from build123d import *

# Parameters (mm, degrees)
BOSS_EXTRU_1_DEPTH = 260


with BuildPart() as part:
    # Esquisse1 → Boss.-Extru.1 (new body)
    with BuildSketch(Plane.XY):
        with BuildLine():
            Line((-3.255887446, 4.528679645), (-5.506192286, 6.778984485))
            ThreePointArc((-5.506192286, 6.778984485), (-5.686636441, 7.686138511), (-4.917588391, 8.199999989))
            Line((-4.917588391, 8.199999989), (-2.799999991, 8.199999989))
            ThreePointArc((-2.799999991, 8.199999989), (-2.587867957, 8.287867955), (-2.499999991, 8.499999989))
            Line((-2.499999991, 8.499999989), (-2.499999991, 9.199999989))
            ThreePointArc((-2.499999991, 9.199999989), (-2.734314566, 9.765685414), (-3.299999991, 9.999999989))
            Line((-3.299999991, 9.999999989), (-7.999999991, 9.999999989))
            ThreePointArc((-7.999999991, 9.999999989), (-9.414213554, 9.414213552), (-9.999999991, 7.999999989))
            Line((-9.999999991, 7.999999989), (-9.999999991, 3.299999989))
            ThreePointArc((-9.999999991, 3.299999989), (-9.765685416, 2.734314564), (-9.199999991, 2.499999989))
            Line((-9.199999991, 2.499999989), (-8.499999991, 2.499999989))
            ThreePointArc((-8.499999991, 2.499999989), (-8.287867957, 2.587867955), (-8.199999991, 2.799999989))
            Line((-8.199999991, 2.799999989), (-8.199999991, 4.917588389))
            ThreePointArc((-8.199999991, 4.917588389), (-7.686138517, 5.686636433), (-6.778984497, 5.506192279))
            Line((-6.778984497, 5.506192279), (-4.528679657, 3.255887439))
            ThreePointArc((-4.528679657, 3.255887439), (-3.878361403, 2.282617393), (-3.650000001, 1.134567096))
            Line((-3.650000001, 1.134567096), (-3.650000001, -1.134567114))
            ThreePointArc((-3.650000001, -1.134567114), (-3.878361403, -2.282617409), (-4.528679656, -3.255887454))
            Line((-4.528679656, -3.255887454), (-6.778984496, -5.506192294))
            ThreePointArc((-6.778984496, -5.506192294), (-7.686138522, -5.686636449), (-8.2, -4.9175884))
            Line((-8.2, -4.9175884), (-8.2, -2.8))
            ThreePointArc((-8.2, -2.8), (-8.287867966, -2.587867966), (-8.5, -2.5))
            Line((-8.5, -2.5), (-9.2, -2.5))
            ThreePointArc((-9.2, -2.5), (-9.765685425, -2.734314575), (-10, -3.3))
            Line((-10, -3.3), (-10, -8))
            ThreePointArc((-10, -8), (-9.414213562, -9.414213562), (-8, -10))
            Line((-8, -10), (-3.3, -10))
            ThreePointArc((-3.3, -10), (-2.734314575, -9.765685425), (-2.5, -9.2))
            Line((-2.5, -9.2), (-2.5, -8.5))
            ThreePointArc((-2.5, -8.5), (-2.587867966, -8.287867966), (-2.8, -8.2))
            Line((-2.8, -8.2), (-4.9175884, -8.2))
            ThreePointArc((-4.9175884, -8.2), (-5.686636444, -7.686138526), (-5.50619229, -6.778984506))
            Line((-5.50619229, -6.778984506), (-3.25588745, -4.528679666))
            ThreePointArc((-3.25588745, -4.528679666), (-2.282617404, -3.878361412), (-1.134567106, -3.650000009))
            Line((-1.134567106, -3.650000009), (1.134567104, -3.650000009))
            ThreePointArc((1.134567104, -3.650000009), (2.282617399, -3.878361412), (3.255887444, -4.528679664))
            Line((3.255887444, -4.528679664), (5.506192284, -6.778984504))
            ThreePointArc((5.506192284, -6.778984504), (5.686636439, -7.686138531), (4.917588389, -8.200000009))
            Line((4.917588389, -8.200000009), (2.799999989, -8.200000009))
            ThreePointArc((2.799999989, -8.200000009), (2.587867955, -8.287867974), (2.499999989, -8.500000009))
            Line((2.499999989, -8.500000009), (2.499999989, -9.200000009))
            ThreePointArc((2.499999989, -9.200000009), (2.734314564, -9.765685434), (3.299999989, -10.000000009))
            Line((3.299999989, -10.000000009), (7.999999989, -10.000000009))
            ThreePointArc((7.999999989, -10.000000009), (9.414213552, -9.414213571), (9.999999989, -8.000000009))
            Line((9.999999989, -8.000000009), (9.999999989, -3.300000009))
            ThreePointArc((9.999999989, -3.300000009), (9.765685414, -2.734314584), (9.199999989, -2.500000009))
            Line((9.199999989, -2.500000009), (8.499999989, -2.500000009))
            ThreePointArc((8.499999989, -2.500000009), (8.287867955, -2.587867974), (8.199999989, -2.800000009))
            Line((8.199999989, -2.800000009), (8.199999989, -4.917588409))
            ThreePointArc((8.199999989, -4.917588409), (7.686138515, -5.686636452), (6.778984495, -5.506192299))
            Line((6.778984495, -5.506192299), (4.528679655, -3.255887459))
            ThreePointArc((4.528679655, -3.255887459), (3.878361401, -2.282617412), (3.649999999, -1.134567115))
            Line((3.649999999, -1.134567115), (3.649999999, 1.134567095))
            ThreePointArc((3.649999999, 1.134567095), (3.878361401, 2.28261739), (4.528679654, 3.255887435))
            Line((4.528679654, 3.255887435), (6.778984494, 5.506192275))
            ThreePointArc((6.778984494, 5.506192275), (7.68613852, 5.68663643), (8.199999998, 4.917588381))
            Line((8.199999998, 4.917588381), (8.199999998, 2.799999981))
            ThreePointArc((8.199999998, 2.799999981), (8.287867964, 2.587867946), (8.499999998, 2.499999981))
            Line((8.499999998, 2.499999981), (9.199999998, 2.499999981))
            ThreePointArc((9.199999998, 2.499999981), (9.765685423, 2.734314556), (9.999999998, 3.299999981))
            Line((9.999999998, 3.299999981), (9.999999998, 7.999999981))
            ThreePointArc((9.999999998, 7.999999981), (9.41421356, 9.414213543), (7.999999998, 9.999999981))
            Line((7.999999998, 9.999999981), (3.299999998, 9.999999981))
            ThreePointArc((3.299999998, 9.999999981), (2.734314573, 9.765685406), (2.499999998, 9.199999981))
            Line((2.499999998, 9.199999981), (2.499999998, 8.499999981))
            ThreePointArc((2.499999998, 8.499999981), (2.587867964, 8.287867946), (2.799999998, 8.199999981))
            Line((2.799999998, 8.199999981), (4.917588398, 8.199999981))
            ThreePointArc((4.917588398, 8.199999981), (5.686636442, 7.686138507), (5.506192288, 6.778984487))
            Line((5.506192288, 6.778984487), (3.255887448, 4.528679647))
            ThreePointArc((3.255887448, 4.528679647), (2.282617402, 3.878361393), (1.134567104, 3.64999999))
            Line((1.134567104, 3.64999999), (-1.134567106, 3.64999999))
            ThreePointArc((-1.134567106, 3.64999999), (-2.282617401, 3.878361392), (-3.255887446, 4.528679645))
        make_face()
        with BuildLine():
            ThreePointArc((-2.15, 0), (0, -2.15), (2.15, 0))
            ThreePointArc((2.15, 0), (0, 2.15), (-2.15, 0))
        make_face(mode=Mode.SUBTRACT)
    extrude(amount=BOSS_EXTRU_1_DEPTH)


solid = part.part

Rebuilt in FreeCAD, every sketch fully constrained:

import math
import FreeCAD as App
import Part
import Sketcher
from FreeCAD import Vector
Q = App.Units.Quantity

doc = App.newDocument("Part")
body = doc.addObject("PartDesign::Body", "Body")

# Sketch on XY plane
sketch1 = body.newObject("Sketcher::SketchObject", "Sketch")
sketch1.AttachmentSupport = (doc.getObject("XY_Plane"), [""])
sketch1.MapMode = "FlatFace"
sketch1.addGeometry(Part.LineSegment(Vector(-3.255887, 4.52868, 0), Vector(-5.506192, 6.778984, 0)), False)
sketch1.addGeometry(Part.ArcOfCircle(Part.Circle(Vector(-4.917588, 7.367588, 0), Vector(0, 0, 1), 0.832412), math.radians(90), math.radians(225)), False)
sketch1.addGeometry(Part.LineSegment(Vector(-4.917588, 8.2, 0), Vector(-2.8, 8.2, 0)), False)
sketch1.addGeometry(Part.ArcOfCircle(Part.Circle(Vector(-2.8, 8.5, 0), Vector(0, 0, 1), 0.3), math.radians(-90), math.radians(0)), False)
sketch1.addGeometry(Part.LineSegment(Vector(-2.5, 8.5, 0), Vector(-2.5, 9.2, 0)), False)
sketch1.addGeometry(Part.ArcOfCircle(Part.Circle(Vector(-3.3, 9.2, 0), Vector(0, 0, 1), 0.8), math.radians(0), math.radians(90)), False)
sketch1.addGeometry(Part.LineSegment(Vector(-3.3, 10, 0), Vector(-8, 10, 0)), False)
sketch1.addGeometry(Part.ArcOfCircle(Part.Circle(Vector(-8, 8, 0), Vector(0, 0, 1), 2), math.radians(90), math.radians(180)), False)
sketch1.addGeometry(Part.LineSegment(Vector(-10, 8, 0), Vector(-10, 3.3, 0)), False)
sketch1.addGeometry(Part.ArcOfCircle(Part.Circle(Vector(-9.2, 3.3, 0), Vector(0, 0, 1), 0.8), math.radians(180), math.radians(270)), False)
sketch1.addGeometry(Part.LineSegment(Vector(-9.2, 2.5, 0), Vector(-8.5, 2.5, 0)), False)
sketch1.addGeometry(Part.ArcOfCircle(Part.Circle(Vector(-8.5, 2.8, 0), Vector(0, 0, 1), 0.3), math.radians(-90), math.radians(0)), False)
sketch1.addGeometry(Part.LineSegment(Vector(-8.2, 2.8, 0), Vector(-8.2, 4.917588, 0)), False)
sketch1.addGeometry(Part.ArcOfCircle(Part.Circle(Vector(-7.367588, 4.917588, 0), Vector(0, 0, 1), 0.832412), math.radians(45), math.radians(180)), False)
sketch1.addGeometry(Part.LineSegment(Vector(-6.778984, 5.506192, 0), Vector(-4.52868, 3.255887, 0)), False)
sketch1.addGeometry(Part.ArcOfCircle(Part.Circle(Vector(-6.65, 1.134567, 0), Vector(0, 0, 1), 3), math.radians(0), math.radians(45)), False)
sketch1.addGeometry(Part.LineSegment(Vector(-3.65, 1.134567, 0), Vector(-3.65, -1.134567, 0)), False)
sketch1.addGeometry(Part.ArcOfCircle(Part.Circle(Vector(-6.65, -1.134567, 0), Vector(0, 0, 1), 3), math.radians(-45), math.radians(0)), False)
sketch1.addGeometry(Part.LineSegment(Vector(-4.52868, -3.255887, 0), Vector(-6.778984, -5.506192, 0)), False)
sketch1.addGeometry(Part.ArcOfCircle(Part.Circle(Vector(-7.367588, -4.917588, 0), Vector(0, 0, 1), 0.832412), math.radians(180), math.radians(315)), False)
sketch1.addGeometry(Part.LineSegment(Vector(-8.2, -4.917588, 0), Vector(-8.2, -2.8, 0)), False)
sketch1.addGeometry(Part.ArcOfCircle(Part.Circle(Vector(-8.5, -2.8, 0), Vector(0, 0, 1), 0.3), math.radians(0), math.radians(90)), False)
sketch1.addGeometry(Part.LineSegment(Vector(-8.5, -2.5, 0), Vector(-9.2, -2.5, 0)), False)
sketch1.addGeometry(Part.ArcOfCircle(Part.Circle(Vector(-9.2, -3.3, 0), Vector(0, 0, 1), 0.8), math.radians(90), math.radians(180)), False)
sketch1.addGeometry(Part.LineSegment(Vector(-10, -3.3, 0), Vector(-10, -8, 0)), False)
sketch1.addGeometry(Part.ArcOfCircle(Part.Circle(Vector(-8, -8, 0), Vector(0, 0, 1), 2), math.radians(-180), math.radians(-90)), False)
sketch1.addGeometry(Part.LineSegment(Vector(-8, -10, 0), Vector(-3.3, -10, 0)), False)
sketch1.addGeometry(Part.ArcOfCircle(Part.Circle(Vector(-3.3, -9.2, 0), Vector(0, 0, 1), 0.8), math.radians(-90), math.radians(0)), False)
sketch1.addGeometry(Part.LineSegment(Vector(-2.5, -9.2, 0), Vector(-2.5, -8.5, 0)), False)
sketch1.addGeometry(Part.ArcOfCircle(Part.Circle(Vector(-2.8, -8.5, 0), Vector(0, 0, 1), 0.3), math.radians(0), math.radians(90)), False)
sketch1.addGeometry(Part.LineSegment(Vector(-2.8, -8.2, 0), Vector(-4.917588, -8.2, 0)), False)
sketch1.addGeometry(Part.ArcOfCircle(Part.Circle(Vector(-4.917588, -7.367588, 0), Vector(0, 0, 1), 0.832412), math.radians(135), math.radians(270)), False)
sketch1.addGeometry(Part.LineSegment(Vector(-5.506192, -6.778985, 0), Vector(-3.255887, -4.52868, 0)), False)
sketch1.addGeometry(Part.ArcOfCircle(Part.Circle(Vector(-1.134567, -6.65, 0), Vector(0, 0, 1), 3), math.radians(90), math.radians(135)), False)
sketch1.addGeometry(Part.LineSegment(Vector(-1.134567, -3.65, 0), Vector(1.134567, -3.65, 0)), False)
sketch1.addGeometry(Part.ArcOfCircle(Part.Circle(Vector(1.134567, -6.65, 0), Vector(0, 0, 1), 3), math.radians(45), math.radians(90)), False)
sketch1.addGeometry(Part.LineSegment(Vector(3.255887, -4.52868, 0), Vector(5.506192, -6.778985, 0)), False)
sketch1.addGeometry(Part.ArcOfCircle(Part.Circle(Vector(4.917588, -7.367588, 0), Vector(0, 0, 1), 0.832412), math.radians(-90), math.radians(45)), False)
sketch1.addGeometry(Part.LineSegment(Vector(4.917588, -8.2, 0), Vector(2.8, -8.2, 0)), False)
sketch1.addGeometry(Part.ArcOfCircle(Part.Circle(Vector(2.8, -8.5, 0), Vector(0, 0, 1), 0.3), math.radians(90), math.radians(180)), False)
sketch1.addGeometry(Part.LineSegment(Vector(2.5, -8.5, 0), Vector(2.5, -9.2, 0)), False)
sketch1.addGeometry(Part.ArcOfCircle(Part.Circle(Vector(3.3, -9.2, 0), Vector(0, 0, 1), 0.8), math.radians(180), math.radians(270)), False)
sketch1.addGeometry(Part.LineSegment(Vector(3.3, -10, 0), Vector(8, -10, 0)), False)
sketch1.addGeometry(Part.ArcOfCircle(Part.Circle(Vector(8, -8, 0), Vector(0, 0, 1), 2), math.radians(-90), math.radians(0)), False)
sketch1.addGeometry(Part.LineSegment(Vector(10, -8, 0), Vector(10, -3.3, 0)), False)
sketch1.addGeometry(Part.ArcOfCircle(Part.Circle(Vector(9.2, -3.3, 0), Vector(0, 0, 1), 0.8), math.radians(0), math.radians(90)), False)
sketch1.addGeometry(Part.LineSegment(Vector(9.2, -2.5, 0), Vector(8.5, -2.5, 0)), False)
sketch1.addGeometry(Part.ArcOfCircle(Part.Circle(Vector(8.5, -2.8, 0), Vector(0, 0, 1), 0.3), math.radians(90), math.radians(180)), False)
sketch1.addGeometry(Part.LineSegment(Vector(8.2, -2.8, 0), Vector(8.2, -4.917588, 0)), False)
sketch1.addGeometry(Part.ArcOfCircle(Part.Circle(Vector(7.367588, -4.917588, 0), Vector(0, 0, 1), 0.832412), math.radians(-135), math.radians(0)), False)
sketch1.addGeometry(Part.LineSegment(Vector(6.778984, -5.506192, 0), Vector(4.52868, -3.255887, 0)), False)
sketch1.addGeometry(Part.ArcOfCircle(Part.Circle(Vector(6.65, -1.134567, 0), Vector(0, 0, 1), 3), math.radians(180), math.radians(225)), False)
sketch1.addGeometry(Part.LineSegment(Vector(3.65, -1.134567, 0), Vector(3.65, 1.134567, 0)), False)
sketch1.addGeometry(Part.ArcOfCircle(Part.Circle(Vector(6.65, 1.134567, 0), Vector(0, 0, 1), 3), math.radians(135), math.radians(180)), False)
sketch1.addGeometry(Part.LineSegment(Vector(4.52868, 3.255887, 0), Vector(6.778984, 5.506192, 0)), False)
sketch1.addGeometry(Part.ArcOfCircle(Part.Circle(Vector(7.367588, 4.917588, 0), Vector(0, 0, 1), 0.832412), math.radians(0), math.radians(135)), False)
sketch1.addGeometry(Part.LineSegment(Vector(8.2, 4.917588, 0), Vector(8.2, 2.8, 0)), False)
sketch1.addGeometry(Part.ArcOfCircle(Part.Circle(Vector(8.5, 2.8, 0), Vector(0, 0, 1), 0.3), math.radians(180), math.radians(270)), False)
sketch1.addGeometry(Part.LineSegment(Vector(8.5, 2.5, 0), Vector(9.2, 2.5, 0)), False)
sketch1.addGeometry(Part.ArcOfCircle(Part.Circle(Vector(9.2, 3.3, 0), Vector(0, 0, 1), 0.8), math.radians(-90), math.radians(0)), False)
sketch1.addGeometry(Part.LineSegment(Vector(10, 3.3, 0), Vector(10, 8, 0)), False)
sketch1.addGeometry(Part.ArcOfCircle(Part.Circle(Vector(8, 8, 0), Vector(0, 0, 1), 2), math.radians(0), math.radians(90)), False)
sketch1.addGeometry(Part.LineSegment(Vector(8, 10, 0), Vector(3.3, 10, 0)), False)
sketch1.addGeometry(Part.ArcOfCircle(Part.Circle(Vector(3.3, 9.2, 0), Vector(0, 0, 1), 0.8), math.radians(90), math.radians(180)), False)
sketch1.addGeometry(Part.LineSegment(Vector(2.5, 9.2, 0), Vector(2.5, 8.5, 0)), False)
sketch1.addGeometry(Part.ArcOfCircle(Part.Circle(Vector(2.8, 8.5, 0), Vector(0, 0, 1), 0.3), math.radians(180), math.radians(270)), False)
sketch1.addGeometry(Part.LineSegment(Vector(2.8, 8.2, 0), Vector(4.917588, 8.2, 0)), False)
sketch1.addGeometry(Part.ArcOfCircle(Part.Circle(Vector(4.917588, 7.367588, 0), Vector(0, 0, 1), 0.832412), math.radians(-45), math.radians(90)), False)
sketch1.addGeometry(Part.LineSegment(Vector(5.506192, 6.778984, 0), Vector(3.255887, 4.52868, 0)), False)
sketch1.addGeometry(Part.ArcOfCircle(Part.Circle(Vector(1.134567, 6.65, 0), Vector(0, 0, 1), 3), math.radians(-90), math.radians(-45)), False)
sketch1.addGeometry(Part.LineSegment(Vector(1.134567, 3.65, 0), Vector(-1.134567, 3.65, 0)), False)
sketch1.addGeometry(Part.ArcOfCircle(Part.Circle(Vector(-1.134567, 6.65, 0), Vector(0, 0, 1), 3), math.radians(-135), math.radians(-90)), False)
sketch1.addGeometry(Part.Circle(Vector(0, 0, 0), Vector(0, 0, 1), 2.15), False)
sketch1.addConstraint(Sketcher.Constraint("Tangent", 0, 2, 1, 2))
sketch1.addConstraint(Sketcher.Constraint("Tangent", 1, 1, 2, 1))
sketch1.addConstraint(Sketcher.Constraint("Tangent", 2, 2, 3, 1))
sketch1.addConstraint(Sketcher.Constraint("Tangent", 3, 2, 4, 1))
sketch1.addConstraint(Sketcher.Constraint("Tangent", 4, 2, 5, 1))
sketch1.addConstraint(Sketcher.Constraint("Tangent", 5, 2, 6, 1))
sketch1.addConstraint(Sketcher.Constraint("Tangent", 6, 2, 7, 1))
sketch1.addConstraint(Sketcher.Constraint("Tangent", 7, 2, 8, 1))
sketch1.addConstraint(Sketcher.Constraint("Tangent", 8, 2, 9, 1))
sketch1.addConstraint(Sketcher.Constraint("Tangent", 9, 2, 10, 1))
sketch1.addConstraint(Sketcher.Constraint("Tangent", 10, 2, 11, 1))
sketch1.addConstraint(Sketcher.Constraint("Tangent", 11, 2, 12, 1))
sketch1.addConstraint(Sketcher.Constraint("Tangent", 12, 2, 13, 2))
sketch1.addConstraint(Sketcher.Constraint("Tangent", 13, 1, 14, 1))
sketch1.addConstraint(Sketcher.Constraint("Tangent", 14, 2, 15, 2))
sketch1.addConstraint(Sketcher.Constraint("Tangent", 15, 1, 16, 1))
sketch1.addConstraint(Sketcher.Constraint("Tangent", 16, 2, 17, 2))
sketch1.addConstraint(Sketcher.Constraint("Tangent", 17, 1, 18, 1))
sketch1.addConstraint(Sketcher.Constraint("Tangent", 18, 2, 19, 2))
sketch1.addConstraint(Sketcher.Constraint("Tangent", 19, 1, 20, 1))
sketch1.addConstraint(Sketcher.Constraint("Tangent", 20, 2, 21, 1))
sketch1.addConstraint(Sketcher.Constraint("Tangent", 21, 2, 22, 1))
sketch1.addConstraint(Sketcher.Constraint("Tangent", 22, 2, 23, 1))
sketch1.addConstraint(Sketcher.Constraint("Tangent", 23, 2, 24, 1))
sketch1.addConstraint(Sketcher.Constraint("Tangent", 24, 2, 25, 1))
sketch1.addConstraint(Sketcher.Constraint("Tangent", 25, 2, 26, 1))
sketch1.addConstraint(Sketcher.Constraint("Tangent", 26, 2, 27, 1))
sketch1.addConstraint(Sketcher.Constraint("Tangent", 27, 2, 28, 1))
sketch1.addConstraint(Sketcher.Constraint("Tangent", 28, 2, 29, 1))
sketch1.addConstraint(Sketcher.Constraint("Tangent", 29, 2, 30, 1))
sketch1.addConstraint(Sketcher.Constraint("Tangent", 30, 2, 31, 2))
sketch1.addConstraint(Sketcher.Constraint("Tangent", 31, 1, 32, 1))
sketch1.addConstraint(Sketcher.Constraint("Tangent", 32, 2, 33, 2))
sketch1.addConstraint(Sketcher.Constraint("Tangent", 33, 1, 34, 1))
sketch1.addConstraint(Sketcher.Constraint("Tangent", 34, 2, 35, 2))
sketch1.addConstraint(Sketcher.Constraint("Tangent", 35, 1, 36, 1))
sketch1.addConstraint(Sketcher.Constraint("Tangent", 36, 2, 37, 2))
sketch1.addConstraint(Sketcher.Constraint("Tangent", 37, 1, 38, 1))
sketch1.addConstraint(Sketcher.Constraint("Tangent", 38, 2, 39, 1))
sketch1.addConstraint(Sketcher.Constraint("Tangent", 39, 2, 40, 1))
sketch1.addConstraint(Sketcher.Constraint("Tangent", 40, 2, 41, 1))
sketch1.addConstraint(Sketcher.Constraint("Tangent", 41, 2, 42, 1))
sketch1.addConstraint(Sketcher.Constraint("Tangent", 42, 2, 43, 1))
sketch1.addConstraint(Sketcher.Constraint("Tangent", 43, 2, 44, 1))
sketch1.addConstraint(Sketcher.Constraint("Tangent", 44, 2, 45, 1))
sketch1.addConstraint(Sketcher.Constraint("Tangent", 45, 2, 46, 1))
sketch1.addConstraint(Sketcher.Constraint("Tangent", 46, 2, 47, 1))
sketch1.addConstraint(Sketcher.Constraint("Tangent", 47, 2, 48, 1))
sketch1.addConstraint(Sketcher.Constraint("Tangent", 48, 2, 49, 2))
sketch1.addConstraint(Sketcher.Constraint("Tangent", 49, 1, 50, 1))
sketch1.addConstraint(Sketcher.Constraint("Tangent", 50, 2, 51, 2))
sketch1.addConstraint(Sketcher.Constraint("Tangent", 51, 1, 52, 1))
sketch1.addConstraint(Sketcher.Constraint("Tangent", 52, 2, 53, 2))
sketch1.addConstraint(Sketcher.Constraint("Tangent", 53, 1, 54, 1))
sketch1.addConstraint(Sketcher.Constraint("Tangent", 54, 2, 55, 2))
sketch1.addConstraint(Sketcher.Constraint("Tangent", 55, 1, 56, 1))
sketch1.addConstraint(Sketcher.Constraint("Tangent", 56, 2, 57, 1))
sketch1.addConstraint(Sketcher.Constraint("Tangent", 57, 2, 58, 1))
sketch1.addConstraint(Sketcher.Constraint("Tangent", 58, 2, 59, 1))
sketch1.addConstraint(Sketcher.Constraint("Tangent", 59, 2, 60, 1))
sketch1.addConstraint(Sketcher.Constraint("Tangent", 60, 2, 61, 1))
sketch1.addConstraint(Sketcher.Constraint("Tangent", 61, 2, 62, 1))
sketch1.addConstraint(Sketcher.Constraint("Tangent", 62, 2, 63, 1))
sketch1.addConstraint(Sketcher.Constraint("Tangent", 63, 2, 64, 1))
sketch1.addConstraint(Sketcher.Constraint("Tangent", 64, 2, 65, 1))
sketch1.addConstraint(Sketcher.Constraint("Tangent", 65, 2, 66, 1))
sketch1.addConstraint(Sketcher.Constraint("Tangent", 66, 2, 67, 2))
sketch1.addConstraint(Sketcher.Constraint("Tangent", 67, 1, 68, 1))
sketch1.addConstraint(Sketcher.Constraint("Tangent", 68, 2, 69, 2))
sketch1.addConstraint(Sketcher.Constraint("Tangent", 69, 1, 70, 1))
sketch1.addConstraint(Sketcher.Constraint("Tangent", 70, 2, 71, 2))
sketch1.addConstraint(Sketcher.Constraint("Tangent", 71, 1, 0, 1))
sketch1.addConstraint(Sketcher.Constraint("Horizontal", 2))
sketch1.addConstraint(Sketcher.Constraint("Vertical", 4))
sketch1.addConstraint(Sketcher.Constraint("Horizontal", 6))
sketch1.addConstraint(Sketcher.Constraint("Vertical", 8))
sketch1.addConstraint(Sketcher.Constraint("Horizontal", 10))
sketch1.addConstraint(Sketcher.Constraint("Vertical", 12))
sketch1.addConstraint(Sketcher.Constraint("Vertical", 16))
sketch1.addConstraint(Sketcher.Constraint("Vertical", 20))
sketch1.addConstraint(Sketcher.Constraint("Horizontal", 22))
sketch1.addConstraint(Sketcher.Constraint("Vertical", 24))
sketch1.addConstraint(Sketcher.Constraint("Horizontal", 26))
sketch1.addConstraint(Sketcher.Constraint("Vertical", 28))
sketch1.addConstraint(Sketcher.Constraint("Horizontal", 30))
sketch1.addConstraint(Sketcher.Constraint("Horizontal", 34))
sketch1.addConstraint(Sketcher.Constraint("Horizontal", 38))
sketch1.addConstraint(Sketcher.Constraint("Vertical", 40))
sketch1.addConstraint(Sketcher.Constraint("Horizontal", 42))
sketch1.addConstraint(Sketcher.Constraint("Vertical", 44))
sketch1.addConstraint(Sketcher.Constraint("Horizontal", 46))
sketch1.addConstraint(Sketcher.Constraint("Vertical", 48))
sketch1.addConstraint(Sketcher.Constraint("Vertical", 52))
sketch1.addConstraint(Sketcher.Constraint("Vertical", 56))
sketch1.addConstraint(Sketcher.Constraint("Horizontal", 58))
sketch1.addConstraint(Sketcher.Constraint("Vertical", 60))
sketch1.addConstraint(Sketcher.Constraint("Horizontal", 62))
sketch1.addConstraint(Sketcher.Constraint("Vertical", 64))
sketch1.addConstraint(Sketcher.Constraint("Horizontal", 66))
sketch1.addConstraint(Sketcher.Constraint("Horizontal", 70))
sketch1.addConstraint(Sketcher.Constraint("Coincident", 72, 3, -1, 1))
sketch1.addConstraint(Sketcher.Constraint("Equal", 5, 9))
sketch1.addConstraint(Sketcher.Constraint("Equal", 3, 11))
sketch1.addConstraint(Sketcher.Constraint("Equal", 1, 13))
sketch1.addConstraint(Sketcher.Constraint("Equal", 15, 17))
sketch1.addConstraint(Sketcher.Constraint("Equal", 13, 19))
sketch1.addConstraint(Sketcher.Constraint("Equal", 11, 21))
sketch1.addConstraint(Sketcher.Constraint("Equal", 9, 23))
sketch1.addConstraint(Sketcher.Constraint("Equal", 7, 25))
sketch1.addConstraint(Sketcher.Constraint("Equal", 23, 27))
sketch1.addConstraint(Sketcher.Constraint("Equal", 21, 29))
sketch1.addConstraint(Sketcher.Constraint("Equal", 19, 31))
sketch1.addConstraint(Sketcher.Constraint("Equal", 17, 33))
sketch1.addConstraint(Sketcher.Constraint("Equal", 33, 35))
sketch1.addConstraint(Sketcher.Constraint("Equal", 31, 37))
sketch1.addConstraint(Sketcher.Constraint("Equal", 29, 39))
sketch1.addConstraint(Sketcher.Constraint("Equal", 27, 41))
sketch1.addConstraint(Sketcher.Constraint("Equal", 25, 43))
sketch1.addConstraint(Sketcher.Constraint("Equal", 41, 45))
sketch1.addConstraint(Sketcher.Constraint("Equal", 39, 47))
sketch1.addConstraint(Sketcher.Constraint("Equal", 37, 49))
sketch1.addConstraint(Sketcher.Constraint("Equal", 35, 51))
sketch1.addConstraint(Sketcher.Constraint("Equal", 51, 53))
sketch1.addConstraint(Sketcher.Constraint("Equal", 49, 55))
sketch1.addConstraint(Sketcher.Constraint("Equal", 47, 57))
sketch1.addConstraint(Sketcher.Constraint("Equal", 45, 59))
sketch1.addConstraint(Sketcher.Constraint("Equal", 43, 61))
sketch1.addConstraint(Sketcher.Constraint("Equal", 59, 63))
sketch1.addConstraint(Sketcher.Constraint("Equal", 57, 65))
sketch1.addConstraint(Sketcher.Constraint("Equal", 55, 67))
sketch1.addConstraint(Sketcher.Constraint("Equal", 53, 69))
sketch1.addConstraint(Sketcher.Constraint("Equal", 69, 71))
sketch1.addConstraint(Sketcher.Constraint("Symmetric", 1, 3, 37, 3, -1, 1))
sketch1.addConstraint(Sketcher.Constraint("Symmetric", 5, 3, 41, 3, -1, 1))
sketch1.addConstraint(Sketcher.Constraint("Symmetric", 9, 3, 45, 3, -1, 1))
sketch1.addConstraint(Sketcher.Constraint("Symmetric", 13, 3, 49, 3, -1, 1))
sketch1.addConstraint(Sketcher.Constraint("Symmetric", 15, 3, 51, 3, -1, 1))
sketch1.addConstraint(Sketcher.Constraint("Symmetric", 19, 3, 55, 3, -1, 1))
sketch1.addConstraint(Sketcher.Constraint("Symmetric", 23, 3, 59, 3, -1, 1))
sketch1.addConstraint(Sketcher.Constraint("Symmetric", 27, 3, 63, 3, -1, 1))
sketch1.addConstraint(Sketcher.Constraint("Symmetric", 31, 3, 67, 3, -1, 1))
sketch1.addConstraint(Sketcher.Constraint("Symmetric", 33, 3, 69, 3, -1, 1))
sketch1.addConstraint(Sketcher.Constraint("Symmetric", 31, 3, 37, 3, -2))
sketch1.addConstraint(Sketcher.Constraint("Symmetric", 27, 3, 41, 3, -2))
sketch1.addConstraint(Sketcher.Constraint("Symmetric", 23, 3, 45, 3, -2))
sketch1.addConstraint(Sketcher.Constraint("Symmetric", 19, 3, 49, 3, -2))
sketch1.addConstraint(Sketcher.Constraint("Parallel", 0, 14))
sketch1.addConstraint(Sketcher.Constraint("Perpendicular", 14, 18))
sketch1.addConstraint(Sketcher.Constraint("Parallel", 18, 32))
sketch1.addConstraint(Sketcher.Constraint("Perpendicular", 32, 36))
sketch1.addConstraint(Sketcher.Constraint("Perpendicular", 50, 54))
sketch1.addConstraint(Sketcher.Constraint("Horizontal", 17, 3, 51, 3))
sketch1.addConstraint(Sketcher.Constraint("Equal", 58, 4))
sketch1.addConstraint(Sketcher.Constraint("Equal", 62, 8))
sketch1.addConstraint(Sketcher.Constraint("Equal", 66, 12))
sketch1.addConstraint(Sketcher.Constraint("Equal", 70, 16))
sketch1.addConstraint(Sketcher.Constraint("Equal", 0, 14))
sketch1.addConstraint(Sketcher.Constraint("Radius", 7, Q("2 mm")))
sketch1.addConstraint(Sketcher.Constraint("Radius", 15, Q("3 mm")))
sketch1.addConstraint(Sketcher.Constraint("Diameter", 72, Q("4.3 mm")))
sketch1.addConstraint(Sketcher.Constraint("Radius", 3, Q("0.3 mm")))
sketch1.addConstraint(Sketcher.Constraint("Radius", 5, Q("0.8 mm")))
sketch1.addConstraint(Sketcher.Constraint("DistanceX", 6, 2, 6, 1, Q("4.7 mm")))
sketch1.addConstraint(Sketcher.Constraint("DistanceX", 10, 1, 10, 2, Q("0.7 mm")))
sketch1.addConstraint(Sketcher.Constraint("DistanceX", 7, 3, -1, 1, Q("8 mm")))
sketch1.addConstraint(Sketcher.Constraint("DistanceX", 15, 3, -1, 1, Q("6.65 mm")))
sketch1.addConstraint(Sketcher.Constraint("Radius", 1, Q("0.832412 mm")))
sketch1.addConstraint(Sketcher.Constraint("DistanceX", 2, 1, 2, 2, Q("2.117588 mm")))
pad1 = body.newObject("PartDesign::Pad", "Pad")
pad1.Profile = sketch1
pad1.Length = 260

doc.recompute()
